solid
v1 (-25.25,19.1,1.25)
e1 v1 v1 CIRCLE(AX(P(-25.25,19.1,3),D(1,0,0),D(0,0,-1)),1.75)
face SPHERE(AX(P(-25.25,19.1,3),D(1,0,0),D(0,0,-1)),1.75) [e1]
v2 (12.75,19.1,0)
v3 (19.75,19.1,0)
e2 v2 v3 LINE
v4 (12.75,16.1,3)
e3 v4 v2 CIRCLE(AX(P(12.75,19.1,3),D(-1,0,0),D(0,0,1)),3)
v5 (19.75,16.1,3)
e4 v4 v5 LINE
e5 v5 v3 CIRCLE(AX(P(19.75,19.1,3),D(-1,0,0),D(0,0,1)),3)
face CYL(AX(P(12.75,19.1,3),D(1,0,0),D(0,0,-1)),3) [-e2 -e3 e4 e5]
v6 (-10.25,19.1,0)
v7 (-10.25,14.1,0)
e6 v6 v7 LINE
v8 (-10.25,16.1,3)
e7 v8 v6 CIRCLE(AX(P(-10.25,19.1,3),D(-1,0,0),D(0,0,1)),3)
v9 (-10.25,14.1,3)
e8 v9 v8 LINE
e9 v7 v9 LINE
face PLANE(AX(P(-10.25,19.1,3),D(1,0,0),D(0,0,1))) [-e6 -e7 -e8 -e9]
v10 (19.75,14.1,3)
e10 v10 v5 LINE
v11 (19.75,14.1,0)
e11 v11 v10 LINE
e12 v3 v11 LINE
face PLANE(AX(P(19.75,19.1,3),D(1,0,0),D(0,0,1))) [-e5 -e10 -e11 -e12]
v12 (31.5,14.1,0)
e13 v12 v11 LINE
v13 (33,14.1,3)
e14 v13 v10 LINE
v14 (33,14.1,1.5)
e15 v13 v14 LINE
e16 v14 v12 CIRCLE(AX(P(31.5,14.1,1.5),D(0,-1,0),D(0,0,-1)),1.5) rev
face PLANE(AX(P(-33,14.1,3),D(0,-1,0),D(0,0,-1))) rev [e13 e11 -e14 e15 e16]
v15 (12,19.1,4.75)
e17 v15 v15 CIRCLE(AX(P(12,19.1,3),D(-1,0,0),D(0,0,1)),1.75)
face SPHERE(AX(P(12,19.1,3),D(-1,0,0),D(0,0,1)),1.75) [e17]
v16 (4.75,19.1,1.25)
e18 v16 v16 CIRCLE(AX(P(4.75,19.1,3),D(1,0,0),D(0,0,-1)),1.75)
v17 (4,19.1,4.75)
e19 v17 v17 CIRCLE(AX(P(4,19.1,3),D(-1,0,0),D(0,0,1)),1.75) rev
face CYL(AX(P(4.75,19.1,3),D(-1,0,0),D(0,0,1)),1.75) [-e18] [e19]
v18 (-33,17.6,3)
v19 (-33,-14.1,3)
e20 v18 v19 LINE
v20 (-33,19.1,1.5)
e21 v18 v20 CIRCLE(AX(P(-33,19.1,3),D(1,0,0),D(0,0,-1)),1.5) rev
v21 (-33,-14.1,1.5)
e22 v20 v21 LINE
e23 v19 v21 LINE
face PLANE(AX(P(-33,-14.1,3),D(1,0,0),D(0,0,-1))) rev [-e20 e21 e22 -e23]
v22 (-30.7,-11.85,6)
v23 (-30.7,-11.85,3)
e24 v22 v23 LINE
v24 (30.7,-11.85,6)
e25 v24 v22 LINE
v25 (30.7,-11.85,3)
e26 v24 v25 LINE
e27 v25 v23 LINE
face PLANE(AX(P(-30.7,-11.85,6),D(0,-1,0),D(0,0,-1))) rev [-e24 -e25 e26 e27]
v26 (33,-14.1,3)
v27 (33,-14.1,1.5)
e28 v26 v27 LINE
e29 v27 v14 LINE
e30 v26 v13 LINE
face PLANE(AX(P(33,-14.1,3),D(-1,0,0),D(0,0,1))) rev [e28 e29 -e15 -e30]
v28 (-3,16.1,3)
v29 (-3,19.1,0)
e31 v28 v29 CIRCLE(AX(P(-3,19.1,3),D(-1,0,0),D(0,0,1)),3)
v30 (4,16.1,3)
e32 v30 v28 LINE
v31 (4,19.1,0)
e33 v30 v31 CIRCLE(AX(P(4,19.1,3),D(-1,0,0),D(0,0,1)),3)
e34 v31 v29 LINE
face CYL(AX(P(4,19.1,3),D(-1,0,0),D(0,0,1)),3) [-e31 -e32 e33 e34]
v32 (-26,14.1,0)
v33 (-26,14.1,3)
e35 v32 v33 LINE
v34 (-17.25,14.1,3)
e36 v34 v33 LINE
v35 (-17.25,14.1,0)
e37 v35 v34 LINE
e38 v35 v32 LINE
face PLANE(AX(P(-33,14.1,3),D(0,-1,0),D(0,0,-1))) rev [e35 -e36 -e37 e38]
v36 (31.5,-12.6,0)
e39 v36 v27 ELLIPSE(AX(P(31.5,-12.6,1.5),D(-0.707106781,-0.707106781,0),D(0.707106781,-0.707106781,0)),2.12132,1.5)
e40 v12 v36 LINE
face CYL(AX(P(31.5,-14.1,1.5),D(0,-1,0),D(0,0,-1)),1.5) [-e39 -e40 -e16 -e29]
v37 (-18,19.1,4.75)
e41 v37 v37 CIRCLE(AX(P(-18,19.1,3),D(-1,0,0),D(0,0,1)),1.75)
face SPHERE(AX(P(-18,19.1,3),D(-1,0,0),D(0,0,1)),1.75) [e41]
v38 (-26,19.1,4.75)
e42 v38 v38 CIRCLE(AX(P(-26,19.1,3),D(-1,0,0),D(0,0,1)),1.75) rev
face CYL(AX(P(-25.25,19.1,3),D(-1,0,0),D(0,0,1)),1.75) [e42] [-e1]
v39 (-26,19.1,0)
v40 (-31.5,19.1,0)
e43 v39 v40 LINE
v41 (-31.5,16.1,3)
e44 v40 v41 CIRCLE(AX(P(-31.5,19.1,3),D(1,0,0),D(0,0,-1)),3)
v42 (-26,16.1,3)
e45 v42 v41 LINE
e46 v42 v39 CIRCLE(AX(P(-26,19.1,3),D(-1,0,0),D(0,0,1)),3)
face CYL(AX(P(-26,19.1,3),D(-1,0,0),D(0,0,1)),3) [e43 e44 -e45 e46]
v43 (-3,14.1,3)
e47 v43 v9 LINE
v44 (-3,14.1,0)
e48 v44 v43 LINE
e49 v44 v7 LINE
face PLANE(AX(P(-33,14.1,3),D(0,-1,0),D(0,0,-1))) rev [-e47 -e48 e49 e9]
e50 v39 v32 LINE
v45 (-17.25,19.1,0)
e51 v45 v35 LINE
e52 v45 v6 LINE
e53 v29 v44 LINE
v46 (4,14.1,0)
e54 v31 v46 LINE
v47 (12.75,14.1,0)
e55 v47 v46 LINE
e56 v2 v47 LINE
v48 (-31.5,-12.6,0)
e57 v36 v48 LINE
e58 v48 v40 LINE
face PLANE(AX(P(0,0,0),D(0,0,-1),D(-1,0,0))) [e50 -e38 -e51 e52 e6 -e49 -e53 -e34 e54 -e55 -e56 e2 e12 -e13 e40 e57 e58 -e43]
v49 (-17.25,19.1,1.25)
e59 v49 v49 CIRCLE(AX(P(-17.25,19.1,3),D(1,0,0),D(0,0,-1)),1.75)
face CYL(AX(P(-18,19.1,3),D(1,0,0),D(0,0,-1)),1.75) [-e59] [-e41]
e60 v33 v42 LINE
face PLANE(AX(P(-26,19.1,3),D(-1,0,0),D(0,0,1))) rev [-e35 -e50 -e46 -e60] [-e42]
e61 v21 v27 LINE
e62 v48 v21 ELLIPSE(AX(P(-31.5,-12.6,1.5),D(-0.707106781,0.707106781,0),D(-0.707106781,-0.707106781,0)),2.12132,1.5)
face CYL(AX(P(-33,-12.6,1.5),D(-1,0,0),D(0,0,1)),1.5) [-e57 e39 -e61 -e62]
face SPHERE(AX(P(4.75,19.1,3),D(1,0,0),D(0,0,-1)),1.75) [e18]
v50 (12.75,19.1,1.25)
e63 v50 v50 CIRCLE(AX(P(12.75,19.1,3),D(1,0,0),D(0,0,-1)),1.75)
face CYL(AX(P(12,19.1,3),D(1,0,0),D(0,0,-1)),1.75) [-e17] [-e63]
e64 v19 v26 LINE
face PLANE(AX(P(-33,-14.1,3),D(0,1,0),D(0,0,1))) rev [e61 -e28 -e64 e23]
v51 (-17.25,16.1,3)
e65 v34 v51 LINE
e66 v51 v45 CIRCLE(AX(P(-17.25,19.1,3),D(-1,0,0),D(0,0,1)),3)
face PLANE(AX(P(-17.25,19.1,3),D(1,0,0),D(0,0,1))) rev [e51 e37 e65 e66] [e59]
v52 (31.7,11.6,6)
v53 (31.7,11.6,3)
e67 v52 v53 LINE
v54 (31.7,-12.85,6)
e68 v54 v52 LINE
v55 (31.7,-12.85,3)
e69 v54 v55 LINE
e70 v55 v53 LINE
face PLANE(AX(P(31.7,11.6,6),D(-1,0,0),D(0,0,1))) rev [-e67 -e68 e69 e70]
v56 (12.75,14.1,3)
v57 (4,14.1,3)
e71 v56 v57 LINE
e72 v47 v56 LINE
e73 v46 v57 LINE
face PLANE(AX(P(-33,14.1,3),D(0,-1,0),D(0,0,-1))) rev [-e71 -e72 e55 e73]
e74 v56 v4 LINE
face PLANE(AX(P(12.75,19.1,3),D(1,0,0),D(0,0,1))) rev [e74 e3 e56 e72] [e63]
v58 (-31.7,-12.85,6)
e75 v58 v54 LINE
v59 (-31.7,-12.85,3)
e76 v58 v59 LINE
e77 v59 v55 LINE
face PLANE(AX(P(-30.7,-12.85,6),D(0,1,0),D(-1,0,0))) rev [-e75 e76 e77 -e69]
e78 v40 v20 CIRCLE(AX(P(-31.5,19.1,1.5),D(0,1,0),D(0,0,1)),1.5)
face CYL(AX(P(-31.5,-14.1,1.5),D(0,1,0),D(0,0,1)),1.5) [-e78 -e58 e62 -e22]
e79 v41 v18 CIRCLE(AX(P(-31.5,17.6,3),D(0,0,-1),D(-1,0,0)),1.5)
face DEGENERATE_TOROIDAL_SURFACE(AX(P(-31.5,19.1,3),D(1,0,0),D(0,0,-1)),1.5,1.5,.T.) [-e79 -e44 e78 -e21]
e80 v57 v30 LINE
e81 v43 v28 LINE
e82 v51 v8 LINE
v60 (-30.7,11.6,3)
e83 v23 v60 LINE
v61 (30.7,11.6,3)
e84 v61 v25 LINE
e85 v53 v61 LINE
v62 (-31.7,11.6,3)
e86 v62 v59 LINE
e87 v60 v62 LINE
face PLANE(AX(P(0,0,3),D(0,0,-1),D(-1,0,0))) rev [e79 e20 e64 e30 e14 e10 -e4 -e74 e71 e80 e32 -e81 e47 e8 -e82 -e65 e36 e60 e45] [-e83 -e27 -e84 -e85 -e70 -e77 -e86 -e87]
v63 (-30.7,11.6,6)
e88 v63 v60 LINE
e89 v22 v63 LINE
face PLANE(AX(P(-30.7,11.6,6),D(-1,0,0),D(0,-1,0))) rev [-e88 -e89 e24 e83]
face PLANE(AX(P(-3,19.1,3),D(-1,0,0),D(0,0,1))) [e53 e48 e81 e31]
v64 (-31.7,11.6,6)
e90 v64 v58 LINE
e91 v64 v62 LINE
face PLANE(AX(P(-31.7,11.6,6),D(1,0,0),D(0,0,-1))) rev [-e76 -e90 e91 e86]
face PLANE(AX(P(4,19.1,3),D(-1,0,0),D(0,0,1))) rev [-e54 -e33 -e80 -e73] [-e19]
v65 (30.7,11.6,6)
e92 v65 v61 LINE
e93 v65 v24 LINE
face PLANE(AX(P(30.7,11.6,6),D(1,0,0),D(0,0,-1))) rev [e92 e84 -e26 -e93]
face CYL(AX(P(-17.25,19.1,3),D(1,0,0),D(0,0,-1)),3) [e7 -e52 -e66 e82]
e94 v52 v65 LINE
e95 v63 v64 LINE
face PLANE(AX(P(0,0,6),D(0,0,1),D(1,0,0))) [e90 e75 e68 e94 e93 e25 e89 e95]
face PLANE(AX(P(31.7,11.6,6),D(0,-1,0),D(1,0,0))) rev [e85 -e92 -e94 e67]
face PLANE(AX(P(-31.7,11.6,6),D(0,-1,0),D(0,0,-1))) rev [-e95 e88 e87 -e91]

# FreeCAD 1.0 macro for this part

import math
import FreeCAD as App
import Part
import Sketcher
from FreeCAD import Vector
Q = App.Units.Quantity


def edges_at(feature, points):
    """Names of the edges that pass closest to the given points."""
    edges = feature.Shape.Edges
    near = lambda p: min(range(len(edges)), key=lambda i: edges[i].distToShape(Part.Vertex(*p))[0])
    return sorted({f"Edge{near(p) + 1}" for p in points})

doc = App.newDocument("Part")
body = doc.addObject("PartDesign::Body", "Body")

# Sketch on XY plane
sketch1 = body.newObject("Sketcher::SketchObject", "Sketch")
sketch1.AttachmentSupport = (doc.getObject("XY_Plane"), [""])
sketch1.MapMode = "FlatFace"
sketch1.addGeometry(Part.LineSegment(Vector(-33, 14, 0), Vector(-33, -14, 0)), False)
sketch1.addGeometry(Part.LineSegment(Vector(-33, -14, 0), Vector(33, -14, 0)), False)
sketch1.addGeometry(Part.LineSegment(Vector(33, -14, 0), Vector(33, 14, 0)), False)
sketch1.addGeometry(Part.LineSegment(Vector(33, 14, 0), Vector(-33, 14, 0)), False)
sketch1.addConstraint(Sketcher.Constraint("Coincident", 0, 2, 1, 1))
sketch1.addConstraint(Sketcher.Constraint("Coincident", 1, 2, 2, 1))
sketch1.addConstraint(Sketcher.Constraint("Coincident", 2, 2, 3, 1))
sketch1.addConstraint(Sketcher.Constraint("Coincident", 3, 2, 0, 1))
sketch1.addConstraint(Sketcher.Constraint("Vertical", 0))
sketch1.addConstraint(Sketcher.Constraint("Horizontal", 1))
sketch1.addConstraint(Sketcher.Constraint("Vertical", 2))
sketch1.addConstraint(Sketcher.Constraint("Horizontal", 3))
sketch1.addConstraint(Sketcher.Constraint("Symmetric", 0, 2, 2, 2, -1, 1))
sketch1.addConstraint(Sketcher.Constraint("DistanceX", 1, 1, 1, 2, Q("66 mm")))
sketch1.addConstraint(Sketcher.Constraint("DistanceY", 0, 2, 0, 1, Q("28.2 mm")))
pad1 = body.newObject("PartDesign::Pad", "Pad")
pad1.Profile = sketch1
pad1.Length = 3

# Sketch on YZ plane
sketch2 = body.newObject("Sketcher::SketchObject", "Sketch001")
sketch2.AttachmentSupport = (doc.getObject("YZ_Plane"), [""])
sketch2.MapMode = "FlatFace"
sketch2.AttachmentOffset = App.Placement(Vector(0, 0, -33), App.Rotation())
sketch2.addGeometry(Part.LineSegment(Vector(19.1, 0, 0), Vector(14.1, 0, 0)), False)
sketch2.addGeometry(Part.LineSegment(Vector(14.1, 0, 0), Vector(14.1, 3, 0)), False)
sketch2.addGeometry(Part.LineSegment(Vector(14.1, 3, 0), Vector(16.1, 3, 0)), False)
sketch2.addGeometry(Part.ArcOfCircle(Part.Circle(Vector(19.1, 3, 0), Vector(0, 0, 1), 3), math.radians(-90), math.radians(180)), False)
sketch2.addConstraint(Sketcher.Constraint("Coincident", 0, 2, 1, 1))
sketch2.addConstraint(Sketcher.Constraint("Coincident", 1, 2, 2, 1))
sketch2.addConstraint(Sketcher.Constraint("Coincident", 2, 2, 3, 2))
sketch2.addConstraint(Sketcher.Constraint("Tangent", 3, 1, 0, 1))
sketch2.addConstraint(Sketcher.Constraint("Horizontal", 0))
sketch2.addConstraint(Sketcher.Constraint("Vertical", 1))
sketch2.addConstraint(Sketcher.Constraint("Horizontal", 2))
sketch2.addConstraint(Sketcher.Constraint("PointOnObject", 0, 2, -1))
sketch2.addConstraint(Sketcher.Constraint("Horizontal", 3, 3, 1, 2))
sketch2.addConstraint(Sketcher.Constraint("Radius", 3, Q("3 mm")))
sketch2.addConstraint(Sketcher.Constraint("DistanceX", 0, 2, 0, 1, Q("5 mm")))
sketch2.addConstraint(Sketcher.Constraint("DistanceX", -1, 1, 3, 3, Q("19.1 mm")))
pad2 = body.newObject("PartDesign::Pad", "Pad001")
pad2.Profile = sketch2
pad2.Length = 7

# Sketch on YZ plane
sketch3 = body.newObject("Sketcher::SketchObject", "Sketch002")
sketch3.AttachmentSupport = (doc.getObject("YZ_Plane"), [""])
sketch3.MapMode = "FlatFace"
sketch3.AttachmentOffset = App.Placement(Vector(0, 0, -26), App.Rotation())
sketch3.addGeometry(Part.Circle(Vector(19.1, 3, 0), Vector(0, 0, 1), 1.8), False)
sketch3.addConstraint(Sketcher.Constraint("Diameter", 0, Q("3.5 mm")))
sketch3.addConstraint(Sketcher.Constraint("DistanceY", -1, 1, 0, 3, Q("3 mm")))
sketch3.addConstraint(Sketcher.Constraint("DistanceX", -1, 1, 0, 3, Q("19.1 mm")))
pad3 = body.newObject("PartDesign::Pad", "Pad002")
pad3.Profile = sketch3
pad3.Length = 0.75

# Sketch on YZ plane
sketch4 = body.newObject("Sketcher::SketchObject", "Sketch003")
sketch4.AttachmentSupport = (doc.getObject("YZ_Plane"), [""])
sketch4.MapMode = "FlatFace"
sketch4.AttachmentOffset = App.Placement(Vector(0, 0, -25.25), App.Rotation())
sketch4.addGeometry(Part.LineSegment(Vector(20.9, 3, 0), Vector(17.4, 3, 0)), False)
sketch4.addGeometry(Part.ArcOfCircle(Part.Circle(Vector(19.1, 3, 0), Vector(0, 0, 1), 1.8), math.radians(180), math.radians(360)), False)
sketch4.addGeometry(Part.LineSegment(Vector(20.9, 3, 0), Vector(17.4, 3, 0)), True)  # axis
sketch4.addConstraint(Sketcher.Constraint("Coincident", 0, 1, 1, 2))
sketch4.addConstraint(Sketcher.Constraint("Coincident", 1, 1, 0, 2))
sketch4.addConstraint(Sketcher.Constraint("Horizontal", 0))
sketch4.addConstraint(Sketcher.Constraint("Horizontal", 2))
sketch4.addConstraint(Sketcher.Constraint("Coincident", 2, 1, 0, 1))
sketch4.addConstraint(Sketcher.Constraint("Horizontal", 1, 3, 0, 1))
sketch4.addConstraint(Sketcher.Constraint("Equal", 0, 2))
sketch4.addConstraint(Sketcher.Constraint("Radius", 1, Q("1.75 mm")))
sketch4.addConstraint(Sketcher.Constraint("DistanceY", -1, 1, 1, 3, Q("3 mm")))
sketch4.addConstraint(Sketcher.Constraint("DistanceX", -1, 1, 1, 3, Q("19.1 mm")))
revolution = body.newObject("PartDesign::Revolution", "Revolution")
revolution.Profile = sketch4
revolution.ReferenceAxis = (sketch4, ["Axis0"])
revolution.Angle = 180
doc.recompute()

datumplane = body.newObject("PartDesign::Plane", "DatumPlane")
datumplane.AttachmentSupport = (doc.getObject("YZ_Plane"), [""])
datumplane.MapMode = "FlatFace"
datumplane.AttachmentOffset = App.Placement(Vector(0, 0, -21.625), App.Rotation())
mirrored = body.newObject("PartDesign::Mirrored", "Mirrored")
mirrored.Originals = [pad2, pad3, revolution]
mirrored.MirrorPlane = (datumplane, [""])
body.Tip = mirrored
doc.recompute()

linearpattern = body.newObject("PartDesign::LinearPattern", "LinearPattern")
linearpattern.Originals = [pad2, pad3, revolution]
linearpattern.Direction = (doc.getObject("X_Axis"), [""])
linearpattern.Mode = "offset"
linearpattern.Offset = 30
linearpattern.Occurrences = 2
body.Tip = linearpattern

# Sketch on YZ plane
sketch5 = body.newObject("Sketcher::SketchObject", "Sketch004")
sketch5.AttachmentSupport = (doc.getObject("YZ_Plane"), [""])
sketch5.MapMode = "FlatFace"
sketch5.AttachmentOffset = App.Placement(Vector(0, 0, 19.75), App.Rotation())
sketch5.addGeometry(Part.LineSegment(Vector(14.1, 0, 0), Vector(19.1, 0, 0)), False)
sketch5.addGeometry(Part.ArcOfCircle(Part.Circle(Vector(19.1, 3, 0), Vector(0, 0, 1), 3), math.radians(-90), math.radians(180)), False)
sketch5.addGeometry(Part.LineSegment(Vector(16.1, 3, 0), Vector(14.1, 3, 0)), False)
sketch5.addGeometry(Part.LineSegment(Vector(14.1, 3, 0), Vector(14.1, 0, 0)), False)
sketch5.addConstraint(Sketcher.Constraint("Tangent", 0, 2, 1, 1))
sketch5.addConstraint(Sketcher.Constraint("Coincident", 1, 2, 2, 1))
sketch5.addConstraint(Sketcher.Constraint("Coincident", 2, 2, 3, 1))
sketch5.addConstraint(Sketcher.Constraint("Coincident", 3, 2, 0, 1))
sketch5.addConstraint(Sketcher.Constraint("Horizontal", 0))
sketch5.addConstraint(Sketcher.Constraint("Horizontal", 2))
sketch5.addConstraint(Sketcher.Constraint("Vertical", 3))
sketch5.addConstraint(Sketcher.Constraint("PointOnObject", 0, 2, -1))
sketch5.addConstraint(Sketcher.Constraint("Radius", 1, Q("3 mm")))
sketch5.addConstraint(Sketcher.Constraint("DistanceX", 0, 1, 0, 2, Q("5 mm")))
sketch5.addConstraint(Sketcher.Constraint("DistanceY", 3, 2, 3, 1, Q("3 mm")))
sketch5.addConstraint(Sketcher.Constraint("DistanceX", -1, 1, 1, 3, Q("19.1 mm")))
pad4 = body.newObject("PartDesign::Pad", "Pad003")
pad4.Profile = sketch5
pad4.Length = 7
pad4.Reversed = True

# Sketch on YZ plane
sketch6 = body.newObject("Sketcher::SketchObject", "Sketch005")
sketch6.AttachmentSupport = (doc.getObject("YZ_Plane"), [""])
sketch6.MapMode = "FlatFace"
sketch6.AttachmentOffset = App.Placement(Vector(0, 0, 12.75), App.Rotation())
sketch6.addGeometry(Part.Circle(Vector(19.1, 3, 0), Vector(0, 0, 1), 1.8), False)
sketch6.addConstraint(Sketcher.Constraint("Diameter", 0, Q("3.5 mm")))
sketch6.addConstraint(Sketcher.Constraint("DistanceY", -1, 1, 0, 3, Q("3 mm")))
sketch6.addConstraint(Sketcher.Constraint("DistanceX", -1, 1, 0, 3, Q("19.1 mm")))
pad5 = body.newObject("PartDesign::Pad", "Pad004")
pad5.Profile = sketch6
pad5.Length = 0.75
pad5.Reversed = True

# Sketch on YZ plane
sketch7 = body.newObject("Sketcher::SketchObject", "Sketch006")
sketch7.AttachmentSupport = (doc.getObject("YZ_Plane"), [""])
sketch7.MapMode = "FlatFace"
sketch7.AttachmentOffset = App.Placement(Vector(0, 0, 12), App.Rotation())
sketch7.addGeometry(Part.LineSegment(Vector(17.4, 3, 0), Vector(20.9, 3, 0)), False)
sketch7.addGeometry(Part.ArcOfCircle(Part.Circle(Vector(19.1, 3, 0), Vector(0, 0, 1), 1.8), math.radians(180), math.radians(360)), False)
sketch7.addGeometry(Part.LineSegment(Vector(17.4, 3, 0), Vector(20.9, 3, 0)), True)  # axis
sketch7.addConstraint(Sketcher.Constraint("Coincident", 0, 1, 1, 1))
sketch7.addConstraint(Sketcher.Constraint("Coincident", 1, 2, 0, 2))
sketch7.addConstraint(Sketcher.Constraint("Horizontal", 0))
sketch7.addConstraint(Sketcher.Constraint("Horizontal", 2))
sketch7.addConstraint(Sketcher.Constraint("Coincident", 2, 1, 0, 1))
sketch7.addConstraint(Sketcher.Constraint("Horizontal", 1, 3, 0, 1))
sketch7.addConstraint(Sketcher.Constraint("Equal", 0, 2))
sketch7.addConstraint(Sketcher.Constraint("Radius", 1, Q("1.75 mm")))
sketch7.addConstraint(Sketcher.Constraint("DistanceY", -1, 1, 1, 3, Q("3 mm")))
sketch7.addConstraint(Sketcher.Constraint("DistanceX", -1, 1, 1, 3, Q("19.1 mm")))
revolution2 = body.newObject("PartDesign::Revolution", "Revolution001")
revolution2.Profile = sketch7
revolution2.ReferenceAxis = (sketch7, ["Axis0"])
revolution2.Angle = 180
doc.recompute()

fillet = body.newObject("PartDesign::Fillet", "Fillet")
fillet.Base = (revolution2, edges_at(revolution2, [
    (-33, 21.221, 5.121),
    (0, -14.1, 0),
    (-33, 2.5, 0),
    (33, 0, 0),
]))
fillet.Radius = 1.5

# Sketch on XY plane
sketch8 = body.newObject("Sketcher::SketchObject", "Sketch007")
sketch8.AttachmentSupport = (doc.getObject("XY_Plane"), [""])
sketch8.MapMode = "FlatFace"
sketch8.AttachmentOffset = App.Placement(Vector(0, 0, 3), App.Rotation())
sketch8.addGeometry(Part.LineSegment(Vector(-30.7, 11.6, 0), Vector(-31.7, 11.6, 0)), False)
sketch8.addGeometry(Part.LineSegment(Vector(-31.7, 11.6, 0), Vector(-31.7, -12.8, 0)), False)
sketch8.addGeometry(Part.LineSegment(Vector(-31.7, -12.8, 0), Vector(31.7, -12.8, 0)), False)
sketch8.addGeometry(Part.LineSegment(Vector(31.7, -12.8, 0), Vector(31.7, 11.6, 0)), False)
sketch8.addGeometry(Part.LineSegment(Vector(31.7, 11.6, 0), Vector(30.7, 11.6, 0)), False)
sketch8.addGeometry(Part.LineSegment(Vector(30.7, 11.6, 0), Vector(30.7, -11.8, 0)), False)
sketch8.addGeometry(Part.LineSegment(Vector(30.7, -11.8, 0), Vector(-30.7, -11.8, 0)), False)
sketch8.addGeometry(Part.LineSegment(Vector(-30.7, -11.8, 0), Vector(-30.7, 11.6, 0)), False)
sketch8.addConstraint(Sketcher.Constraint("Coincident", 0, 2, 1, 1))
sketch8.addConstraint(Sketcher.Constraint("Coincident", 1, 2, 2, 1))
sketch8.addConstraint(Sketcher.Constraint("Coincident", 2, 2, 3, 1))
sketch8.addConstraint(Sketcher.Constraint("Coincident", 3, 2, 4, 1))
sketch8.addConstraint(Sketcher.Constraint("Coincident", 4, 2, 5, 1))
sketch8.addConstraint(Sketcher.Constraint("Coincident", 5, 2, 6, 1))
sketch8.addConstraint(Sketcher.Constraint("Coincident", 6, 2, 7, 1))
sketch8.addConstraint(Sketcher.Constraint("Coincident", 7, 2, 0, 1))
sketch8.addConstraint(Sketcher.Constraint("Horizontal", 0))
sketch8.addConstraint(Sketcher.Constraint("Vertical", 1))
sketch8.addConstraint(Sketcher.Constraint("Horizontal", 2))
sketch8.addConstraint(Sketcher.Constraint("Vertical", 3))
sketch8.addConstraint(Sketcher.Constraint("Horizontal", 4))
sketch8.addConstraint(Sketcher.Constraint("Vertical", 5))
sketch8.addConstraint(Sketcher.Constraint("Horizontal", 6))
sketch8.addConstraint(Sketcher.Constraint("Vertical", 7))
sketch8.addConstraint(Sketcher.Constraint("Symmetric", 0, 2, 3, 2, -2))
sketch8.addConstraint(Sketcher.Constraint("Equal", 0, 4))
sketch8.addConstraint(Sketcher.Constraint("DistanceX", 0, 2, 0, 1, Q("1 mm")))
sketch8.addConstraint(Sketcher.Constraint("DistanceX", 2, 1, 2, 2, Q("63.4 mm")))
sketch8.addConstraint(Sketcher.Constraint("DistanceY", 2, 2, 5, 2, Q("1 mm")))
sketch8.addConstraint(Sketcher.Constraint("DistanceY", 1, 2, 1, 1, Q("24.45 mm")))
sketch8.addConstraint(Sketcher.Constraint("DistanceY", -1, 1, 0, 2, Q("11.6 mm")))
pad6 = body.newObject("PartDesign::Pad", "Pad005")
pad6.Profile = sketch8
pad6.Length = 3

doc.recompute()
